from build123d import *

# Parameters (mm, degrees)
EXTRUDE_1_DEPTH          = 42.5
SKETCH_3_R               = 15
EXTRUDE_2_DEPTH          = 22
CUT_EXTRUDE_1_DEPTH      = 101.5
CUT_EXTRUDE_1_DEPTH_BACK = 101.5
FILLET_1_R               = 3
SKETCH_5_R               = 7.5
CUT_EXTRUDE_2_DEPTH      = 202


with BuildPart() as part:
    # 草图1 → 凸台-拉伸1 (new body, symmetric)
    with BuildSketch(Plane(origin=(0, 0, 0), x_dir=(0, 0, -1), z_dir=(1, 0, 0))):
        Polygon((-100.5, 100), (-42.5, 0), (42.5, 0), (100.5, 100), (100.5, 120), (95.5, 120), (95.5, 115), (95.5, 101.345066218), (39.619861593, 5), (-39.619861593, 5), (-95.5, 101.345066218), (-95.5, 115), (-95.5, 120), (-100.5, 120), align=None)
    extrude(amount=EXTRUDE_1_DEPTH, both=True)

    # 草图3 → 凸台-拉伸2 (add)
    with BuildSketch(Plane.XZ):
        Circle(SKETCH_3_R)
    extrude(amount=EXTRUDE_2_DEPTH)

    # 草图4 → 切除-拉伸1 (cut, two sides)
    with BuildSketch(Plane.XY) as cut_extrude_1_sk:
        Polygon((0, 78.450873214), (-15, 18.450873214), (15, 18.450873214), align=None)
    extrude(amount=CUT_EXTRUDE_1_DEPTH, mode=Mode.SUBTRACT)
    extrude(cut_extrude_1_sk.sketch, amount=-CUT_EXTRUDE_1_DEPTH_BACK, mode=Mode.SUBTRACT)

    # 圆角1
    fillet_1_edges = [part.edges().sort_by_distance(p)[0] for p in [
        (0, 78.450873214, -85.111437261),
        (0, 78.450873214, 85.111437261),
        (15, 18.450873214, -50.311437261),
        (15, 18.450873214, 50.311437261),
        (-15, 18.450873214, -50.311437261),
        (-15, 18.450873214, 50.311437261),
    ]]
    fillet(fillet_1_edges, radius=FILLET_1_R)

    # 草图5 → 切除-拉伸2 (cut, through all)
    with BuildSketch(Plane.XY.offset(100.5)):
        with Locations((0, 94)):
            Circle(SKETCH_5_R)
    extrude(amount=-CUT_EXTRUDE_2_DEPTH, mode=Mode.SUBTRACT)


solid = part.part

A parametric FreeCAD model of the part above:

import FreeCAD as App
import Part
import Sketcher
Q = App.Units.Quantity


def edges_at(feature, points):
    """Names of the edges that pass closest to the given points."""
    edges = feature.Shape.Edges
    near = lambda p: min(range(len(edges)), key=lambda i: edges[i].distToShape(Part.Vertex(*p))[0])
    return sorted({f"Edge{near(p) + 1}" for p in points})

doc = App.newDocument("Part")
body = doc.addObject("PartDesign::Body", "Body")

sketch1 = body.newObject("Sketcher::SketchObject", "Sketch")
sketch1.AttachmentSupport = (doc.getObject("YZ_Plane"), [""])
sketch1.MapMode = "FlatFace"
sketch1.addGeometry([
    Part.LineSegment(App.Vector(100, 100, 0), App.Vector(0, 42, 0)),
    Part.LineSegment(App.Vector(0, 42, 0), App.Vector(0, -42, 0)),
    Part.LineSegment(App.Vector(0, -42, 0), App.Vector(100, -100, 0)),
    Part.LineSegment(App.Vector(100, -100, 0), App.Vector(120, -100, 0)),
    Part.LineSegment(App.Vector(120, -100, 0), App.Vector(120, -96, 0)),
    Part.LineSegment(App.Vector(120, -96, 0), App.Vector(101, -96, 0)),
    Part.LineSegment(App.Vector(101, -96, 0), App.Vector(5, -40, 0)),
    Part.LineSegment(App.Vector(5, -40, 0), App.Vector(5, 40, 0)),
    Part.LineSegment(App.Vector(5, 40, 0), App.Vector(101, 96, 0)),
    Part.LineSegment(App.Vector(101, 96, 0), App.Vector(120, 96, 0)),
    Part.LineSegment(App.Vector(120, 96, 0), App.Vector(120, 100, 0)),
    Part.LineSegment(App.Vector(120, 100, 0), App.Vector(100, 100, 0)),
], False)
sketch1.addConstraint([
    Sketcher.Constraint("Coincident", 0, 2, 1, 1),
    Sketcher.Constraint("Coincident", 1, 2, 2, 1),
    Sketcher.Constraint("Coincident", 2, 2, 3, 1),
    Sketcher.Constraint("Coincident", 3, 2, 4, 1),
    Sketcher.Constraint("Coincident", 4, 2, 5, 1),
    Sketcher.Constraint("Coincident", 5, 2, 6, 1),
    Sketcher.Constraint("Coincident", 6, 2, 7, 1),
    Sketcher.Constraint("Coincident", 7, 2, 8, 1),
    Sketcher.Constraint("Coincident", 8, 2, 9, 1),
    Sketcher.Constraint("Coincident", 9, 2, 10, 1),
    Sketcher.Constraint("Coincident", 10, 2, 11, 1),
    Sketcher.Constraint("Coincident", 11, 2, 0, 1),
    Sketcher.Constraint("Vertical", 1),
    Sketcher.Constraint("Horizontal", 3),
    Sketcher.Constraint("Vertical", 4),
    Sketcher.Constraint("Horizontal", 5),
    Sketcher.Constraint("Vertical", 7),
    Sketcher.Constraint("Horizontal", 9),
    Sketcher.Constraint("Vertical", 10),
    Sketcher.Constraint("Horizontal", 11),
    Sketcher.Constraint("Symmetric", 0, 2, 1, 2, -1, 1),
    Sketcher.Constraint("Symmetric", 5, 2, 8, 2, -1),
    Sketcher.Constraint("Symmetric", 3, 2, 10, 2, -1),
    Sketcher.Constraint("Parallel", 2, 6),
    Sketcher.Constraint("Parallel", 0, 8),
    Sketcher.Constraint("Vertical", 2, 2, 11, 2),
    Sketcher.Constraint("DistanceX", 3, 1, 3, 2, Q("20 mm")),
    Sketcher.Constraint("DistanceY", 1, 2, 1, 1, Q("85 mm")),
    Sketcher.Constraint("DistanceY", 4, 1, 4, 2, Q("5 mm")),
    Sketcher.Constraint("DistanceX", -1, 1, 2, 2, Q("100 mm")),
    Sketcher.Constraint("DistanceX", -1, 1, 6, 2, Q("5 mm")),
    Sketcher.Constraint("DistanceY", 2, 2, 1, 2, Q("58 mm")),
    Sketcher.Constraint("DistanceX", 5, 2, 5, 1, Q("18.654934 mm")),
])
pad1 = body.newObject("PartDesign::Pad", "Pad")
pad1.Profile = sketch1
pad1.Length = 85
pad1.Midplane = True

sketch2 = body.newObject("Sketcher::SketchObject", "Sketch001")
sketch2.AttachmentSupport = (doc.getObject("XZ_Plane"), [""])
sketch2.MapMode = "FlatFace"
sketch2.addGeometry(Part.Circle(App.Vector(0, 0, 0), App.Vector(0, 0, 1), 15), False)
sketch2.addConstraint([
    Sketcher.Constraint("Coincident", 0, 3, -1, 1),
    Sketcher.Constraint("Diameter", 0, Q("30 mm")),
])
pad2 = body.newObject("PartDesign::Pad", "Pad001")
pad2.Profile = sketch2
pad2.Length = 22

sketch3 = body.newObject("Sketcher::SketchObject", "Sketch002")
sketch3.AttachmentSupport = (doc.getObject("XY_Plane"), [""])
sketch3.MapMode = "FlatFace"
sketch3.addGeometry([
    Part.LineSegment(App.Vector(0, 78, 0), App.Vector(-15, 18, 0)),
    Part.LineSegment(App.Vector(-15, 18, 0), App.Vector(15, 18, 0)),
    Part.LineSegment(App.Vector(15, 18, 0), App.Vector(0, 78, 0)),
], False)
sketch3.addConstraint([
    Sketcher.Constraint("Coincident", 0, 2, 1, 1),
    Sketcher.Constraint("Coincident", 1, 2, 2, 1),
    Sketcher.Constraint("Coincident", 2, 2, 0, 1),
    Sketcher.Constraint("Horizontal", 1),
    Sketcher.Constraint("PointOnObject", 2, 2, -2),
    Sketcher.Constraint("Equal", 0, 2),
    Sketcher.Constraint("DistanceX", 1, 1, 1, 2, Q("30 mm")),
    Sketcher.Constraint("DistanceY", 0, 2, 2, 2, Q("60 mm")),
    Sketcher.Constraint("DistanceY", -1, 1, 0, 2, Q("18.450873 mm")),
])
pocket1 = body.newObject("PartDesign::Pocket", "Pocket")
pocket1.Profile = sketch3
pocket1.Type = "ThroughAll"
pocket1.Midplane = True
doc.recompute()

fillet = body.newObject("PartDesign::Fillet", "Fillet")
fillet.Base = (pocket1, edges_at(pocket1, [
    (0, 78.451, -85.111),
    (0, 78.451, 85.111),
    (15, 18.451, -50.311),
    (15, 18.451, 50.311),
    (-15, 18.451, -50.311),
    (-15, 18.451, 50.311),
]))
fillet.Radius = 3

sketch4 = body.newObject("Sketcher::SketchObject", "Sketch003")
sketch4.AttachmentSupport = (doc.getObject("XY_Plane"), [""])
sketch4.MapMode = "FlatFace"
sketch4.AttachmentOffset = App.Placement(App.Vector(0, 0, 100.5), App.Rotation())
sketch4.addGeometry(Part.Circle(App.Vector(0, 94, 0), App.Vector(0, 0, 1), 8), False)
sketch4.addConstraint([
    Sketcher.Constraint("PointOnObject", 0, 3, -2),
    Sketcher.Constraint("Diameter", 0, Q("15 mm")),
    Sketcher.Constraint("DistanceY", -1, 1, 0, 3, Q("94 mm")),
])
pocket2 = body.newObject("PartDesign::Pocket", "Pocket001")
pocket2.Profile = sketch4
pocket2.Type = "ThroughAll"

doc.recompute()
